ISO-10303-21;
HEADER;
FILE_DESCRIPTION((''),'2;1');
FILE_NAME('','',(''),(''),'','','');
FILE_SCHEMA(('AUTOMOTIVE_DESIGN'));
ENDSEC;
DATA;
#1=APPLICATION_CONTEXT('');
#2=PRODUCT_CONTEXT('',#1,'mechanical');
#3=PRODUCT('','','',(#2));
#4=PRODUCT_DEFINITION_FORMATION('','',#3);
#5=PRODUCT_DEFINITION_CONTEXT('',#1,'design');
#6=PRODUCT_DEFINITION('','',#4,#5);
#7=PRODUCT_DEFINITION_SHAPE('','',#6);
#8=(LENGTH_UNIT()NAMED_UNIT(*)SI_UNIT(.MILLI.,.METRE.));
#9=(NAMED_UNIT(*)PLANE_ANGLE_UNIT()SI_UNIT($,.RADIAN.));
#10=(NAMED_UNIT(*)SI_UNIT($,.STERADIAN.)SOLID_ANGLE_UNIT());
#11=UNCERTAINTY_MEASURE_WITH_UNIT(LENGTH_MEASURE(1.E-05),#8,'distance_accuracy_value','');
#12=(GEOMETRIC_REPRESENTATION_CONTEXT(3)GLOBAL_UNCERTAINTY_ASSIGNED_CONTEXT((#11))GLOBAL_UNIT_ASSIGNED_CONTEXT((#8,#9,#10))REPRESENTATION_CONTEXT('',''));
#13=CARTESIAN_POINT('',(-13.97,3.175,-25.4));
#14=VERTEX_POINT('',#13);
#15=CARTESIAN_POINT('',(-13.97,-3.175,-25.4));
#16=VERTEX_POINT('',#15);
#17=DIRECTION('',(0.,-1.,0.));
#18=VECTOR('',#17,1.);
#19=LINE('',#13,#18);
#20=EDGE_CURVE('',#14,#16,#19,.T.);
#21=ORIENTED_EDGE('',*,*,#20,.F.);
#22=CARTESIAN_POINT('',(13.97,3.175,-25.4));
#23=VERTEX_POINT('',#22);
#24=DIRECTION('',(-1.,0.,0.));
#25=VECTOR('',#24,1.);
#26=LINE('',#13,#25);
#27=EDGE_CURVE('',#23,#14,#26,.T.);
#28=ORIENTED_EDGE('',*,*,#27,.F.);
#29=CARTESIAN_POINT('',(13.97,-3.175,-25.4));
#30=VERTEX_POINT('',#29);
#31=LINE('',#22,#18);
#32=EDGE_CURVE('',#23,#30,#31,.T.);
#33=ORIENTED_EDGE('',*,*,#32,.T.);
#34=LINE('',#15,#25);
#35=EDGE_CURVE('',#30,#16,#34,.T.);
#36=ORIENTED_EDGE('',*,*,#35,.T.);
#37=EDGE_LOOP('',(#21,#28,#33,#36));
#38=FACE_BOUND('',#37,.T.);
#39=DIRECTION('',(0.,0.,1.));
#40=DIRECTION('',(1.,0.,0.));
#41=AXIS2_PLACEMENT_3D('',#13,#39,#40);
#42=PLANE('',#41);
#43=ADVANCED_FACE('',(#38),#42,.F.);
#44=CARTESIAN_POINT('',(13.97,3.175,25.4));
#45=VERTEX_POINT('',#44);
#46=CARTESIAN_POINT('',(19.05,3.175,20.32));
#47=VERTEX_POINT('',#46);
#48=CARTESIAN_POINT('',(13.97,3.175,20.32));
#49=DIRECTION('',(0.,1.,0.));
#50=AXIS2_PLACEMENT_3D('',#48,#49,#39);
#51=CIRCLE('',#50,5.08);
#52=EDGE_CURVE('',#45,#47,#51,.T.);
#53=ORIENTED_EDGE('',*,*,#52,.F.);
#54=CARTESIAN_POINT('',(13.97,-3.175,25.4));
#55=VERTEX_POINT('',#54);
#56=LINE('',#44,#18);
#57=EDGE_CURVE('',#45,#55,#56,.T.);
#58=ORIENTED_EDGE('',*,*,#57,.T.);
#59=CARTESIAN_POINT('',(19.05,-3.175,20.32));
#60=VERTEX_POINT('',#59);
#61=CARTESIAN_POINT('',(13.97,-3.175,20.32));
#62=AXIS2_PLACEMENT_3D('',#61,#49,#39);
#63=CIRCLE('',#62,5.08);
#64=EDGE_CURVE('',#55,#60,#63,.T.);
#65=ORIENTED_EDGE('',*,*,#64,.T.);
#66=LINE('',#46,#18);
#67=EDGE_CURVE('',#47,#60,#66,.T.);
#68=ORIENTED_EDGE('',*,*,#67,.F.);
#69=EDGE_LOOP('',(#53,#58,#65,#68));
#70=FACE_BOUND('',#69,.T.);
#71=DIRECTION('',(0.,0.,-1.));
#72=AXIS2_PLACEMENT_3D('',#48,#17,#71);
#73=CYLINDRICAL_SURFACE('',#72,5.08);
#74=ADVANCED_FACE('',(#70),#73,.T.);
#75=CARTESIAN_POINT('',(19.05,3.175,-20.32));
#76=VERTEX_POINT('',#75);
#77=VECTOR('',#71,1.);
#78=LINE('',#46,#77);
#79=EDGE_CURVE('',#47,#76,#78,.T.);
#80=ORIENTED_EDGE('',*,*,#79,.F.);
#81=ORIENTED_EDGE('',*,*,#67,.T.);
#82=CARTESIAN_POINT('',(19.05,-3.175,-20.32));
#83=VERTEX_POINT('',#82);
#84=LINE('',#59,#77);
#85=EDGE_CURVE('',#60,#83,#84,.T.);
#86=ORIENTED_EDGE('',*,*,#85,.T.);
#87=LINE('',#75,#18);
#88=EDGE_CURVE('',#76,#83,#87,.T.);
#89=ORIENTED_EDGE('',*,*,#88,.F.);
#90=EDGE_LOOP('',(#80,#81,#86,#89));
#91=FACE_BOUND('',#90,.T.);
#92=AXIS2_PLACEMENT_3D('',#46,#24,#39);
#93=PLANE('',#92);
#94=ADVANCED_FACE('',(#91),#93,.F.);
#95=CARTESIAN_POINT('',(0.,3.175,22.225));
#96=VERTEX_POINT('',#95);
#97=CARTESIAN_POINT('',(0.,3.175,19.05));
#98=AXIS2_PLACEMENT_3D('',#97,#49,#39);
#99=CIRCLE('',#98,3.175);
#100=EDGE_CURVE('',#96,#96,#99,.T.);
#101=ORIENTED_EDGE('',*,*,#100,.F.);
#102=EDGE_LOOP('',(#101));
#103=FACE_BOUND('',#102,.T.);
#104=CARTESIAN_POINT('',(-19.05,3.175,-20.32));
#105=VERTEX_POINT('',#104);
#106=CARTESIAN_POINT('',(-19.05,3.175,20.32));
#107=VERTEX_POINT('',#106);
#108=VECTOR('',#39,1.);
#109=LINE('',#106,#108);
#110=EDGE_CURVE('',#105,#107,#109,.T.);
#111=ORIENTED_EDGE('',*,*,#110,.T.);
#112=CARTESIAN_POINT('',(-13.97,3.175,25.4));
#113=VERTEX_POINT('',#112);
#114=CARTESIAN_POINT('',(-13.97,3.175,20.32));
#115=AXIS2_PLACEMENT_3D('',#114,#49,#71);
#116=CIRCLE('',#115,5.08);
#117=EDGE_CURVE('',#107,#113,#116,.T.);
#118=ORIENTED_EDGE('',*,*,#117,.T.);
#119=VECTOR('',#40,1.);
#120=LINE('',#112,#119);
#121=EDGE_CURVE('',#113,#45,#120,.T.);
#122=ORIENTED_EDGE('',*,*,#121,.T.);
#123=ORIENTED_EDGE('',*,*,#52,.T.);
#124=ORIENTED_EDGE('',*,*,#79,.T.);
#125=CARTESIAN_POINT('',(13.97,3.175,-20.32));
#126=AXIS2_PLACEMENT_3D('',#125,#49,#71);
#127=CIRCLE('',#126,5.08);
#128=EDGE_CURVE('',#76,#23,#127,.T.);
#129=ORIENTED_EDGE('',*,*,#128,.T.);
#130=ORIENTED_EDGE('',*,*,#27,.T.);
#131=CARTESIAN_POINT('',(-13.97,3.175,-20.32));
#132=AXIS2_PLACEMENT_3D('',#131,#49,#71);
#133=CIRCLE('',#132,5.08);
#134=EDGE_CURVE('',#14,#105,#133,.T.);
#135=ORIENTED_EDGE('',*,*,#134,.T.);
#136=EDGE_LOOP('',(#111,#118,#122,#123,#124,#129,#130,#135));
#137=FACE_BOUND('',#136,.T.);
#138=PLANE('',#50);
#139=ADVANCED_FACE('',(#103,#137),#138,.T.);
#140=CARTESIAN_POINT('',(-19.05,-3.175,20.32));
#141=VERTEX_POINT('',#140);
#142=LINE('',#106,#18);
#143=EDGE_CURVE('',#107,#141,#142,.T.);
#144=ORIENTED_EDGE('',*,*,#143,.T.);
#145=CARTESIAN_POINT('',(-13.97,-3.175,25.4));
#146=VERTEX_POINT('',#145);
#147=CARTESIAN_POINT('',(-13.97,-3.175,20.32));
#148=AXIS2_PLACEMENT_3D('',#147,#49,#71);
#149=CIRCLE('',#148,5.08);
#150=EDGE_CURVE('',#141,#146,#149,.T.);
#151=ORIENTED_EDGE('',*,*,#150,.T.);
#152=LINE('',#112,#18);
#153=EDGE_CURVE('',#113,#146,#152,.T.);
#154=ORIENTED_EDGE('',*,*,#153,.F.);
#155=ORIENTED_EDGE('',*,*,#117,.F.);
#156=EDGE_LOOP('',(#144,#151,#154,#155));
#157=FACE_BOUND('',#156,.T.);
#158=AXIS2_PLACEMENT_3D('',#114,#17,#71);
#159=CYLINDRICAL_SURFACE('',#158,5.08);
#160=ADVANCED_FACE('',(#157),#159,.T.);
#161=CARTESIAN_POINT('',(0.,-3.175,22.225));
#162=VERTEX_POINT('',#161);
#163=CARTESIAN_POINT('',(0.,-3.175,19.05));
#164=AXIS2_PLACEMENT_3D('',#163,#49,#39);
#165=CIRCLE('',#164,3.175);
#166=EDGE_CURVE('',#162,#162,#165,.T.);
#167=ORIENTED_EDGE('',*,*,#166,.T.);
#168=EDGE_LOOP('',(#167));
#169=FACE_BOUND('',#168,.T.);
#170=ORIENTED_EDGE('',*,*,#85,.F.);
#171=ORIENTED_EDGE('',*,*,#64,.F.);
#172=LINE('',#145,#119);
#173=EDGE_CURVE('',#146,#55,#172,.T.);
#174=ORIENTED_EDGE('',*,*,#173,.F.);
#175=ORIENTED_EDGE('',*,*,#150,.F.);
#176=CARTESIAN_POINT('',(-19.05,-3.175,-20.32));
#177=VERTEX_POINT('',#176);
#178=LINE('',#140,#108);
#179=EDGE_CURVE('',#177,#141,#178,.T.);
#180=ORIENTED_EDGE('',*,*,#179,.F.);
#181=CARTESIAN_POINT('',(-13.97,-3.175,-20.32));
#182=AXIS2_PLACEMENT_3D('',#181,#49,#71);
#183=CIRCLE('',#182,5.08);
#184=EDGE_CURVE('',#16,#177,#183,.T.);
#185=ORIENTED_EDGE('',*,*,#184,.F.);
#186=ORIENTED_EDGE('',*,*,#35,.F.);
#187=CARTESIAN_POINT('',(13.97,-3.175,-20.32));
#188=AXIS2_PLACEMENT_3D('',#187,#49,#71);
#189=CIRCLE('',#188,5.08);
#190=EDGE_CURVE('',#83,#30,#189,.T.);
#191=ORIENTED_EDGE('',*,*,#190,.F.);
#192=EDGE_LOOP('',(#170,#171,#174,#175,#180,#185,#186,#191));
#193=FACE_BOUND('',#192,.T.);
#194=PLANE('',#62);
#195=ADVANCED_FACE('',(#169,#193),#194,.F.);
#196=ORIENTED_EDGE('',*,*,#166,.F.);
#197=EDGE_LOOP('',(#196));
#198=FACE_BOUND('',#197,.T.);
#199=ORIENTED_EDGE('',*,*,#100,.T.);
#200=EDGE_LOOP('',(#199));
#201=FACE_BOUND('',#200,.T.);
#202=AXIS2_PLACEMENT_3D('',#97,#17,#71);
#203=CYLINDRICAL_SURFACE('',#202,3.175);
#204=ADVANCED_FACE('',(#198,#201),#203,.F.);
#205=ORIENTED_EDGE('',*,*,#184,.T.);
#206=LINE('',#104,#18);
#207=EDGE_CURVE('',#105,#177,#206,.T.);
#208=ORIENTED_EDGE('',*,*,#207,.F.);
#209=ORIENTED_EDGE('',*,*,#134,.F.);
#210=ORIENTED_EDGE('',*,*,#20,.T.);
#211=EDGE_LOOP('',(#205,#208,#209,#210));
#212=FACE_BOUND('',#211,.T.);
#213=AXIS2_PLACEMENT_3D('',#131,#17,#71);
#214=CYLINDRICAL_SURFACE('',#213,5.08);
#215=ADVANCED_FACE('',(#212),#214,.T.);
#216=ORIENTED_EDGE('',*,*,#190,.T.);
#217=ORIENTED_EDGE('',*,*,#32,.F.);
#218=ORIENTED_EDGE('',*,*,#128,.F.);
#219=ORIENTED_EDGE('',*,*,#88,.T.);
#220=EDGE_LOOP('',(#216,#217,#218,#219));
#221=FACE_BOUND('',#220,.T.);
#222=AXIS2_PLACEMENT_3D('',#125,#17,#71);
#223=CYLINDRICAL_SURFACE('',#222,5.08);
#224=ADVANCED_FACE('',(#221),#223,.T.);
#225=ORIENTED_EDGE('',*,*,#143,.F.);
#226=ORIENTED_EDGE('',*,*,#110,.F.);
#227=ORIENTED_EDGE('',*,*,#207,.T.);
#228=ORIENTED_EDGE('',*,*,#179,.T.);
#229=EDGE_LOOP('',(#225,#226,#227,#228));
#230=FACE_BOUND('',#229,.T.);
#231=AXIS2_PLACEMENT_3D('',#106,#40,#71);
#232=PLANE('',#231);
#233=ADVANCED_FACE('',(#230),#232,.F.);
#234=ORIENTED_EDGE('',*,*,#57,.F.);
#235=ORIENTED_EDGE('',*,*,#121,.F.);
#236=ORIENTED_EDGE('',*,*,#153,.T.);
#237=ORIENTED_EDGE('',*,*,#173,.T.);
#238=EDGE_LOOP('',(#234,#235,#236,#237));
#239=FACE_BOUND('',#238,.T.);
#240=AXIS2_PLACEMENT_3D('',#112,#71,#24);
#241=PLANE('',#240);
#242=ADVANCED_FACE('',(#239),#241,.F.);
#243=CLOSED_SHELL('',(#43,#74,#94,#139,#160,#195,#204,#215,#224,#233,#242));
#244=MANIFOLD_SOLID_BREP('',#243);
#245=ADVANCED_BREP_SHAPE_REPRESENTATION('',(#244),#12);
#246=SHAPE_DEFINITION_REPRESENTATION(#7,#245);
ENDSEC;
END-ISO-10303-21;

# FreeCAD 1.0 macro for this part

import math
import FreeCAD as App
import Part
import Sketcher

V = App.Vector
Q = App.Units.Quantity

doc = App.newDocument("Part")
body = doc.addObject("PartDesign::Body", "Body")

sketch1 = doc.addObject("Sketcher::SketchObject", "Sketch")
body.addObject(sketch1)
sketch1.AttachmentSupport = (doc.XZ_Plane, [""])
sketch1.MapMode = "FlatFace"
sketch1.addGeometry([
    Part.LineSegment(V(-13.97, 25.4, 0), V(13.97, 25.4, 0)),
    Part.ArcOfCircle(Part.Circle(V(13.97, 20.32, 0), V(0, 0, 1), 5.08), math.radians(0), math.radians(90)),
    Part.LineSegment(V(19.05, 20.32, 0), V(19.05, -20.32, 0)),
    Part.ArcOfCircle(Part.Circle(V(13.97, -20.32, 0), V(0, 0, 1), 5.08), math.radians(-90), math.radians(0)),
    Part.LineSegment(V(13.97, -25.4, 0), V(-13.97, -25.4, 0)),
    Part.ArcOfCircle(Part.Circle(V(-13.97, -20.32, 0), V(0, 0, 1), 5.08), math.radians(-180), math.radians(-90)),
    Part.LineSegment(V(-19.05, -20.32, 0), V(-19.05, 20.32, 0)),
    Part.ArcOfCircle(Part.Circle(V(-13.97, 20.32, 0), V(0, 0, 1), 5.08), math.radians(90), math.radians(180)),
    Part.Circle(V(0, 19.05, 0), V(0, 0, 1), 3.175),
], False)
sketch1.addConstraint([
    Sketcher.Constraint("Tangent", 0, 2, 1, 2),
    Sketcher.Constraint("Tangent", 1, 1, 2, 1),
    Sketcher.Constraint("Tangent", 2, 2, 3, 2),
    Sketcher.Constraint("Tangent", 3, 1, 4, 1),
    Sketcher.Constraint("Tangent", 4, 2, 5, 2),
    Sketcher.Constraint("Tangent", 5, 1, 6, 1),
    Sketcher.Constraint("Tangent", 6, 2, 7, 2),
    Sketcher.Constraint("Tangent", 7, 1, 0, 1),
    Sketcher.Constraint("Horizontal", 0),
    Sketcher.Constraint("Vertical", 2),
    Sketcher.Constraint("Horizontal", 4),
    Sketcher.Constraint("Vertical", 6),
    Sketcher.Constraint("Equal", 1, 3),
    Sketcher.Constraint("Equal", 3, 5),
    Sketcher.Constraint("Equal", 5, 7),
    Sketcher.Constraint("Symmetric", 1, 3, 5, 3, -1, 1),
    Sketcher.Constraint("PointOnObject", 8, 3, -2),
    Sketcher.Constraint("Radius", 1, Q("0.2 in")),
    Sketcher.Constraint("Diameter", 8, Q("0.25 in")),
    Sketcher.Constraint("DistanceX", 0, 1, 0, 2, Q("1.1 in")),
    Sketcher.Constraint("DistanceY", 2, 2, 2, 1, Q("1.6 in")),
    Sketcher.Constraint("DistanceY", -1, 1, 8, 3, Q("0.75 in")),
])
pad1 = doc.addObject("PartDesign::Pad", "Pad")
body.addObject(pad1)
pad1.Profile = sketch1
pad1.Length = Q("0.25 in")
pad1.Midplane = True

doc.recompute()
